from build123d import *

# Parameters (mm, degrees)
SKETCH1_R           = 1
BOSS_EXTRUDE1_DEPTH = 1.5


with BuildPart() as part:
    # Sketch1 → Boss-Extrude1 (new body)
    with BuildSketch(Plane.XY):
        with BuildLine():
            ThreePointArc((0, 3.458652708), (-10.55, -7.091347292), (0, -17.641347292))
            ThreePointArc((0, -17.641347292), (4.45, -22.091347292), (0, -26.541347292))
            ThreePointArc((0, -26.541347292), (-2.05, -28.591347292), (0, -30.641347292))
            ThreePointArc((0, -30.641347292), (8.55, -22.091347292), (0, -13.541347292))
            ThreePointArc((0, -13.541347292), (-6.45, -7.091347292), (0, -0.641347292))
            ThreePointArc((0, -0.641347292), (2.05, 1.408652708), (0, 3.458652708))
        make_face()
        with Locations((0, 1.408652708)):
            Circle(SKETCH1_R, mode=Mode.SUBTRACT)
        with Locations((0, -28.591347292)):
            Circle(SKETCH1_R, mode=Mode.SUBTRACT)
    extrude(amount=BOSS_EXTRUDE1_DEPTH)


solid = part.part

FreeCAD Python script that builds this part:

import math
import FreeCAD as App
import Part
import Sketcher

V = App.Vector

doc = App.newDocument("Part")
body = doc.addObject("PartDesign::Body", "Body")

sketch1 = doc.addObject("Sketcher::SketchObject", "Sketch")
body.addObject(sketch1)
sketch1.AttachmentSupport = (doc.XY_Plane, [""])
sketch1.MapMode = "FlatFace"
sketch1.addGeometry([
    Part.ArcOfCircle(Part.Circle(V(0, -7.1, 0), V(0, 0, 1), 10.6), math.radians(90), math.radians(270)),
    Part.ArcOfCircle(Part.Circle(V(0, -22.1, 0), V(0, 0, 1), 4.5), math.radians(-90), math.radians(90)),
    Part.ArcOfCircle(Part.Circle(V(0, -28.6, 0), V(0, 0, 1), 2), math.radians(90), math.radians(270)),
    Part.ArcOfCircle(Part.Circle(V(0, -22.1, 0), V(0, 0, 1), 8.6), math.radians(-90), math.radians(90)),
    Part.ArcOfCircle(Part.Circle(V(0, -7.1, 0), V(0, 0, 1), 6.5), math.radians(90), math.radians(270)),
    Part.ArcOfCircle(Part.Circle(V(0, 1.4, 0), V(0, 0, 1), 2), math.radians(-90), math.radians(90)),
    Part.Circle(V(0, -28.6, 0), V(0, 0, 1), 1),
    Part.Circle(V(0, 1.4, 0), V(0, 0, 1), 1),
], False)
sketch1.addConstraint([
    Sketcher.Constraint("Tangent", 0, 2, 1, 2),
    Sketcher.Constraint("Tangent", 1, 1, 2, 1),
    Sketcher.Constraint("Tangent", 2, 2, 3, 1),
    Sketcher.Constraint("Tangent", 3, 2, 4, 2),
    Sketcher.Constraint("Tangent", 4, 1, 5, 1),
    Sketcher.Constraint("Tangent", 5, 2, 0, 1),
    Sketcher.Constraint("Coincident", 3, 3, 1, 3),
    Sketcher.Constraint("Coincident", 4, 3, 0, 3),
    Sketcher.Constraint("Coincident", 6, 3, 2, 3),
    Sketcher.Constraint("Coincident", 7, 3, 5, 3),
    Sketcher.Constraint("Equal", 6, 7),
    Sketcher.Constraint("PointOnObject", 0, 3, -2),
    Sketcher.Constraint("PointOnObject", 1, 3, -2),
    Sketcher.Constraint("PointOnObject", 2, 3, -2),
    Sketcher.Constraint("PointOnObject", 5, 3, -2),
    Sketcher.Constraint("Diameter", 6, 2.0),
    Sketcher.Constraint("Radius", 0, 10.55),
    Sketcher.Constraint("Radius", 1, 4.45),
    Sketcher.Constraint("Radius", 2, 2.05),
    Sketcher.Constraint("DistanceY", 0, 3, -1, 1, 7.091347),
])
pad1 = doc.addObject("PartDesign::Pad", "Pad")
body.addObject(pad1)
pad1.Profile = sketch1
pad1.Length = 1.5

doc.recompute()
